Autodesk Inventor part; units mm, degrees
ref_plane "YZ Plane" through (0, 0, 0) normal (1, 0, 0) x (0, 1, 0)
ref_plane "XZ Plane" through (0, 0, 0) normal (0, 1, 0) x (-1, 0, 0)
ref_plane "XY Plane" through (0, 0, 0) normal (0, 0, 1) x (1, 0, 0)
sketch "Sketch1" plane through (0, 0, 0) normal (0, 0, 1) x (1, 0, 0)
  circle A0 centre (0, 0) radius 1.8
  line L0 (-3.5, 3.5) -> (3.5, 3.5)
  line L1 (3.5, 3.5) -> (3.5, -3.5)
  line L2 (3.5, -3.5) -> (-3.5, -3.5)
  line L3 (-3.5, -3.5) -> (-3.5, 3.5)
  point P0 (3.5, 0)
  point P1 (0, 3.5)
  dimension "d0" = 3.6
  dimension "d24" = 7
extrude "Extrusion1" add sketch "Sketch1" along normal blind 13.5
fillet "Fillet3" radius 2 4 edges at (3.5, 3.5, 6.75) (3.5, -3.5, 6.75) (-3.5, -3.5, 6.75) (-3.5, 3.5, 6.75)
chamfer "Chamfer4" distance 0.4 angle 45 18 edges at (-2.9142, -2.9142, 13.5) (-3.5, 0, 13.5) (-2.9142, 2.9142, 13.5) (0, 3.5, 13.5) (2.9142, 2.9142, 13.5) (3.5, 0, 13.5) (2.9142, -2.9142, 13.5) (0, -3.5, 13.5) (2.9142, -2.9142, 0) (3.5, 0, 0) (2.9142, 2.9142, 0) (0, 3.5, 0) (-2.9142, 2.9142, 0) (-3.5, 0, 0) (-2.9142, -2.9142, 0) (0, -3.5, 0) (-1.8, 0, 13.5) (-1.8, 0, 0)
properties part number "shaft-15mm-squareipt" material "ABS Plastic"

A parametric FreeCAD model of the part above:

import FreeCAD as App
import Part
import Sketcher
Q = App.Units.Quantity


def edges_at(feature, points):
    """Names of the edges that pass closest to the given points."""
    edges = feature.Shape.Edges
    near = lambda p: min(range(len(edges)), key=lambda i: edges[i].distToShape(Part.Vertex(*p))[0])
    return sorted({f"Edge{near(p) + 1}" for p in points})


def add_polygon(sketch, points):
    """Adds a closed chain of lines whose ends are joined by coincident constraints."""
    first, n = sketch.GeometryCount, len(points)
    for a, b in zip(points, points[1:] + points[:1]):
        sketch.addGeometry(Part.LineSegment(App.Vector(*a, 0), App.Vector(*b, 0)), False)
    for i in range(n):
        sketch.addConstraint(Sketcher.Constraint("Coincident", first + i, 2, first + (i + 1) % n, 1))

doc = App.newDocument("Part")
body = doc.addObject("PartDesign::Body", "Body")

# Sketch on XY plane
sketch1 = doc.addObject("Sketcher::SketchObject", "Sketch")
body.addObject(sketch1)
sketch1.AttachmentSupport = (doc.XY_Plane, [""])
sketch1.MapMode = "FlatFace"
add_polygon(sketch1, [(3.5, 3.5), (-3.5, 3.5), (-3.5, -3.5), (3.5, -3.5)])  # lines 0-3
sketch1.addGeometry(Part.Circle(App.Vector(0, 0, 0), App.Vector(0, 0, 1), 1.8), False)  # 4
sketch1.addConstraint(Sketcher.Constraint("Horizontal", 0))
sketch1.addConstraint(Sketcher.Constraint("Vertical", 1))
sketch1.addConstraint(Sketcher.Constraint("Horizontal", 2))
sketch1.addConstraint(Sketcher.Constraint("Vertical", 3))
sketch1.addConstraint(Sketcher.Constraint("Coincident", 4, 3, -1, 1))
sketch1.addConstraint(Sketcher.Constraint("Symmetric", 0, 2, 2, 2, -1, 1))
sketch1.addConstraint(Sketcher.Constraint("Equal", 2, 1))
sketch1.addConstraint(Sketcher.Constraint("Diameter", 4, Q("3.6 mm")))
sketch1.addConstraint(Sketcher.Constraint("DistanceX", 0, 2, 0, 1, Q("7 mm")))
pad1 = doc.addObject("PartDesign::Pad", "Pad")
body.addObject(pad1)
pad1.Profile = sketch1
pad1.Length = 13.5
doc.recompute()

fillet = doc.addObject("PartDesign::Fillet", "Fillet")
body.addObject(fillet)
fillet.Base = (pad1, edges_at(pad1, [
    (3.5, 3.5, 6.75),
    (3.5, -3.5, 6.75),
    (-3.5, -3.5, 6.75),
    (-3.5, 3.5, 6.75),
]))
fillet.Radius = 2
doc.recompute()

chamfer = doc.addObject("PartDesign::Chamfer", "Chamfer")
body.addObject(chamfer)
chamfer.Base = (fillet, edges_at(fillet, [
    (-2.914, -2.914, 13.5),
    (-3.5, 0, 13.5),
    (-2.914, 2.914, 13.5),
    (0, 3.5, 13.5),
    (2.914, 2.914, 13.5),
    (3.5, 0, 13.5),
    (2.914, -2.914, 13.5),
    (0, -3.5, 13.5),
    (2.914, -2.914, 0),
    (3.5, 0, 0),
    (2.914, 2.914, 0),
    (0, 3.5, 0),
    (-2.914, 2.914, 0),
    (-3.5, 0, 0),
    (-2.914, -2.914, 0),
    (0, -3.5, 0),
    (-1.8, 0, 13.5),
    (-1.8, 0, 0),
]))
chamfer.Size = 0.4

doc.recompute()
